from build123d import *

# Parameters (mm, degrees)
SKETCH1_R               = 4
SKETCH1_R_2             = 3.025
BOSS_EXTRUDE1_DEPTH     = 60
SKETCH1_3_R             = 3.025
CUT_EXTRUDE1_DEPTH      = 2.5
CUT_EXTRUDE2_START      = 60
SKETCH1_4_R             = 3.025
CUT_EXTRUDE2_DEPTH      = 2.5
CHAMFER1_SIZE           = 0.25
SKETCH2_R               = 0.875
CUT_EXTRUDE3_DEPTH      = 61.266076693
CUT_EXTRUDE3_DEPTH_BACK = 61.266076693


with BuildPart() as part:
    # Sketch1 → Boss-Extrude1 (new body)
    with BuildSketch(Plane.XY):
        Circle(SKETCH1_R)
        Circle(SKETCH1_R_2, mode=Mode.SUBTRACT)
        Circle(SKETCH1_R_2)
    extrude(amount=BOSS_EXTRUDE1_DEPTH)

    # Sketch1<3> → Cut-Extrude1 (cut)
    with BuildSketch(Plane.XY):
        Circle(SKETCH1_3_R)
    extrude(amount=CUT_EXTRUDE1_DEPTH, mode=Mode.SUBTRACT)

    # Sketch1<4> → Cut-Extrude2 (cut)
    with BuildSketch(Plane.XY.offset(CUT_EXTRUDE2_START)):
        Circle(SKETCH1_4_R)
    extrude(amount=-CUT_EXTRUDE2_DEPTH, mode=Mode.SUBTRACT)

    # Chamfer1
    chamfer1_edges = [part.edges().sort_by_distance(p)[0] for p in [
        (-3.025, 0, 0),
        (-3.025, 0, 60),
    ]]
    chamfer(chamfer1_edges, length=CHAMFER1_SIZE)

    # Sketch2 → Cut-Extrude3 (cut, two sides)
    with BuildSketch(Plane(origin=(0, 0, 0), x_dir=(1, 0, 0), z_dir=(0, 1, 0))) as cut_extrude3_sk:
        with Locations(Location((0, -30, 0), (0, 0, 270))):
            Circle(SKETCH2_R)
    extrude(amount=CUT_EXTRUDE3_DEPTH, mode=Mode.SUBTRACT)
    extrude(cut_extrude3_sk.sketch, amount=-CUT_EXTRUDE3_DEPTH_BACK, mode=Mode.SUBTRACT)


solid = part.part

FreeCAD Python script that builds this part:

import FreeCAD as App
import Part
import Sketcher
from FreeCAD import Vector


def edges_at(feature, points):
    """Names of the edges that pass closest to the given points."""
    edges = feature.Shape.Edges
    near = lambda p: min(range(len(edges)), key=lambda i: edges[i].distToShape(Part.Vertex(*p))[0])
    return sorted({f"Edge{near(p) + 1}" for p in points})

doc = App.newDocument("Part")
body = doc.addObject("PartDesign::Body", "Body")

sketch1 = body.newObject("Sketcher::SketchObject", "Sketch")
sketch1.AttachmentSupport = (doc.getObject("XY_Plane"), [""])
sketch1.MapMode = "FlatFace"
sketch1.addGeometry(Part.Circle(Vector(0, 0, 0), Vector(0, 0, 1), 4), False)
sketch1.addConstraint(Sketcher.Constraint("Coincident", 0, 3, -1, 1))
sketch1.addConstraint(Sketcher.Constraint("Diameter", 0, 8.0))
pad1 = body.newObject("PartDesign::Pad", "Pad")
pad1.Profile = sketch1
pad1.Length = 60

sketch2 = body.newObject("Sketcher::SketchObject", "Sketch001")
sketch2.AttachmentSupport = (doc.getObject("XY_Plane"), [""])
sketch2.MapMode = "FlatFace"
sketch2.addGeometry(Part.Circle(Vector(0, 0, 0), Vector(0, 0, 1), 3), False)
sketch2.addConstraint(Sketcher.Constraint("Coincident", 0, 3, -1, 1))
sketch2.addConstraint(Sketcher.Constraint("Diameter", 0, 6.05))
pocket1 = body.newObject("PartDesign::Pocket", "Pocket")
pocket1.Profile = sketch2
pocket1.Length = 2.5
pocket1.Reversed = True

sketch3 = body.newObject("Sketcher::SketchObject", "Sketch002")
sketch3.AttachmentSupport = (doc.getObject("XY_Plane"), [""])
sketch3.MapMode = "FlatFace"
sketch3.AttachmentOffset = App.Placement(Vector(0, 0, 60), App.Rotation())
sketch3.addGeometry(Part.Circle(Vector(0, 0, 0), Vector(0, 0, 1), 3), False)
sketch3.addConstraint(Sketcher.Constraint("Coincident", 0, 3, -1, 1))
sketch3.addConstraint(Sketcher.Constraint("Diameter", 0, 6.05))
pocket2 = body.newObject("PartDesign::Pocket", "Pocket001")
pocket2.Profile = sketch3
pocket2.Length = 2.5
doc.recompute()

chamfer = body.newObject("PartDesign::Chamfer", "Chamfer")
chamfer.Base = (pocket2, edges_at(pocket2, [(-3.025, 0, 0), (-3.025, 0, 60)]))
chamfer.Size = 0.25

sketch4 = body.newObject("Sketcher::SketchObject", "Sketch003")
sketch4.AttachmentSupport = (doc.getObject("XZ_Plane"), [""])
sketch4.MapMode = "FlatFace"
sketch4.addGeometry(Part.Circle(Vector(0, 30, 0), Vector(0, 0, 1), 0.9), False)
sketch4.addConstraint(Sketcher.Constraint("PointOnObject", 0, 3, -2))
sketch4.addConstraint(Sketcher.Constraint("Diameter", 0, 1.75))
sketch4.addConstraint(Sketcher.Constraint("DistanceY", -1, 1, 0, 3, 30.0))
pocket3 = body.newObject("PartDesign::Pocket", "Pocket002")
pocket3.Profile = sketch4
pocket3.Type = "ThroughAll"
pocket3.Midplane = True

doc.recompute()
